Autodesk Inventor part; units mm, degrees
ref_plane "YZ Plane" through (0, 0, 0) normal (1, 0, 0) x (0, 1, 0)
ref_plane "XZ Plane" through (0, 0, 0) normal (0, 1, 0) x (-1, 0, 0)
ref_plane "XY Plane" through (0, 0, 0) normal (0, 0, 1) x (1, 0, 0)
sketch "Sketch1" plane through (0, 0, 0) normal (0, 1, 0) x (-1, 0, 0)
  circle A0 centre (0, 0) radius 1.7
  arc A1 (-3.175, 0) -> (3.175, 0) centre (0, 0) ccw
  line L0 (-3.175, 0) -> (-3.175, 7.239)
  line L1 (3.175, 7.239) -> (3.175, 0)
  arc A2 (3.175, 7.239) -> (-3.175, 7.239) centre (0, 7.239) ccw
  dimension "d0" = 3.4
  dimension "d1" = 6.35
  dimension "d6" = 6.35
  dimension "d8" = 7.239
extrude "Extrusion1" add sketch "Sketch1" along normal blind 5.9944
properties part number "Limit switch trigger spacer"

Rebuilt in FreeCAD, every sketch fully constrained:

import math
import FreeCAD as App
import Part
import Sketcher
Q = App.Units.Quantity

doc = App.newDocument("Part")
body = doc.addObject("PartDesign::Body", "Body")

# Sketch on XZ plane
sketch1 = body.newObject("Sketcher::SketchObject", "Sketch")
sketch1.AttachmentSupport = (doc.getObject("XZ_Plane"), [""])
sketch1.MapMode = "FlatFace"
sketch1.addGeometry([
    Part.LineSegment(App.Vector(3.175, 7.239, 0), App.Vector(3.175, 0, 0)),  # 0
    Part.ArcOfCircle(Part.Circle(App.Vector(0, 0, 0), App.Vector(0, 0, 1), 3.175), math.radians(180), math.radians(360)),  # 1
    Part.LineSegment(App.Vector(-3.175, 0, 0), App.Vector(-3.175, 7.239, 0)),  # 2
    Part.ArcOfCircle(Part.Circle(App.Vector(0, 7.239, 0), App.Vector(0, 0, 1), 3.175), math.radians(0), math.radians(180)),  # 3
    Part.Circle(App.Vector(0, 0, 0), App.Vector(0, 0, 1), 1.7),  # 4
], False)
sketch1.addConstraint([
    Sketcher.Constraint("Tangent", 0, 2, 1, 2),
    Sketcher.Constraint("Tangent", 1, 1, 2, 1),
    Sketcher.Constraint("Tangent", 2, 2, 3, 2),
    Sketcher.Constraint("Tangent", 3, 1, 0, 1),
    Sketcher.Constraint("Vertical", 0),
    Sketcher.Constraint("Vertical", 2),
    Sketcher.Constraint("Coincident", 1, 3, -1, 1),
    Sketcher.Constraint("Coincident", 4, 3, -1, 1),
    Sketcher.Constraint("Radius", 1, Q("0.125 in")),
    Sketcher.Constraint("Diameter", 4, Q("3.4 mm")),
    Sketcher.Constraint("DistanceY", 0, 2, 0, 1, Q("0.285 in")),
])
pad1 = body.newObject("PartDesign::Pad", "Pad")
pad1.Profile = sketch1
pad1.Length = Q("0.236 in")
pad1.Reversed = True

doc.recompute()
